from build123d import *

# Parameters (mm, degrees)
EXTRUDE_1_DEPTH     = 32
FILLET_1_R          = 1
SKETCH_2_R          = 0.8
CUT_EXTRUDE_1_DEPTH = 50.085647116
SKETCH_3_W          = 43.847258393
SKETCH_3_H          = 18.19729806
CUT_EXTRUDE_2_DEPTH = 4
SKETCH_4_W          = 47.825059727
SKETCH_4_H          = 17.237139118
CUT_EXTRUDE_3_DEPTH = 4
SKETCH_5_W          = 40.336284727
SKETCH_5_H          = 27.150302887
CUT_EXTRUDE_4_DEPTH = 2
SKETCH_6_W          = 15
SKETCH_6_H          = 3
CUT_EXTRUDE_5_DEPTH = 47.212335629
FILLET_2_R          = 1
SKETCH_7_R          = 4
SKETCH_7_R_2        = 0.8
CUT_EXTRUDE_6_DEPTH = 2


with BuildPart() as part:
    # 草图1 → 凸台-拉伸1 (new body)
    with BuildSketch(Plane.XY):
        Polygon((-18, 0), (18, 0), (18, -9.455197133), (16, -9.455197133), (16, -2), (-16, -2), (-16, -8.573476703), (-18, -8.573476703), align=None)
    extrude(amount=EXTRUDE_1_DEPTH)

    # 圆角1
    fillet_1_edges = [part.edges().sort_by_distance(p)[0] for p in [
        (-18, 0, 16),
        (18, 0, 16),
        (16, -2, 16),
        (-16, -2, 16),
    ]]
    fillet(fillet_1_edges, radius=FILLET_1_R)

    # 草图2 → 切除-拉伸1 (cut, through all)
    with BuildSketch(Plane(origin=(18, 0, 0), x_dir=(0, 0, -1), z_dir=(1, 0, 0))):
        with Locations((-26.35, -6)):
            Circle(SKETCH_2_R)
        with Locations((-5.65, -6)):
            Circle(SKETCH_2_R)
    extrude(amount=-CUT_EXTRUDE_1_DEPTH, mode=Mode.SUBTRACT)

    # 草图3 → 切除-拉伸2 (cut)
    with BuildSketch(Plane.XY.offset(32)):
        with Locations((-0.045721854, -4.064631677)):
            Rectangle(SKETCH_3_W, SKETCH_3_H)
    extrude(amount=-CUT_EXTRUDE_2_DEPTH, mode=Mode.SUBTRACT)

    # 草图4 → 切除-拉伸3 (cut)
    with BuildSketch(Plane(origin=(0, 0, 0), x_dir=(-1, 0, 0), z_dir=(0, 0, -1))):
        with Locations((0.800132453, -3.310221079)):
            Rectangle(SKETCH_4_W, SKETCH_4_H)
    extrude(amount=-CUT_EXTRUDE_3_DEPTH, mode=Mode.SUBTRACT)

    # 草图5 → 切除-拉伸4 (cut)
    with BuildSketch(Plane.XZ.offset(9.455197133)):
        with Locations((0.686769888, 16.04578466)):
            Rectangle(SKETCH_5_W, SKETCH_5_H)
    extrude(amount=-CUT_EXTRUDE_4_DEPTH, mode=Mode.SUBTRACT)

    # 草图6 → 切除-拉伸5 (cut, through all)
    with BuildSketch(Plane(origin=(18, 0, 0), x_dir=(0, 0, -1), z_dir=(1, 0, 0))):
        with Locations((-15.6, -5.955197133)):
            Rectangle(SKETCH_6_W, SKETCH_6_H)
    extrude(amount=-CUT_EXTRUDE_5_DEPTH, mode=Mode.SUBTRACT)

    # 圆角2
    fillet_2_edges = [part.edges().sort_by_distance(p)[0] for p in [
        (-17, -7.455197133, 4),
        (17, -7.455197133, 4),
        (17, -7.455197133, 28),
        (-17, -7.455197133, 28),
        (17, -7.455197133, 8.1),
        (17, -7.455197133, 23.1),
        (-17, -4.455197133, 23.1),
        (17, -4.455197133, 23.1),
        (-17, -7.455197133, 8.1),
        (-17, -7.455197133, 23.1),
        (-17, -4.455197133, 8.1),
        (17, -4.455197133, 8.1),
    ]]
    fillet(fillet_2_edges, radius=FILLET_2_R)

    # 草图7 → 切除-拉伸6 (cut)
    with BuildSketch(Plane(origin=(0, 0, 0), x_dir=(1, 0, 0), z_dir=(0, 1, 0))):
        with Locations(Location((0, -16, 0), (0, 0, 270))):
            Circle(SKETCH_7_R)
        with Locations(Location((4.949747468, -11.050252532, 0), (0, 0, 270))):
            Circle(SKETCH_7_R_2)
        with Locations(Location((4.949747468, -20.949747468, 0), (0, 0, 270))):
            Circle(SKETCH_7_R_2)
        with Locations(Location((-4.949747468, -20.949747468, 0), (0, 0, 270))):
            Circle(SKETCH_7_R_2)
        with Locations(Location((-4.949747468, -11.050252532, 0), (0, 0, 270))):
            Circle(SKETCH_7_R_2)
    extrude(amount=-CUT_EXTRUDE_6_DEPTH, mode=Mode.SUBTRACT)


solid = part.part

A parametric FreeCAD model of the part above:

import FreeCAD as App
import Part
import Sketcher

V = App.Vector


def edges_at(feature, points):
    """Names of the edges that pass closest to the given points."""
    edges = feature.Shape.Edges
    near = lambda p: min(range(len(edges)), key=lambda i: edges[i].distToShape(Part.Vertex(*p))[0])
    return sorted({f"Edge{near(p) + 1}" for p in points})


def add_polygon(sketch, points):
    """Adds a closed chain of lines whose ends are joined by coincident constraints."""
    first, n = sketch.GeometryCount, len(points)
    for a, b in zip(points, points[1:] + points[:1]):
        sketch.addGeometry(Part.LineSegment(App.Vector(*a, 0), App.Vector(*b, 0)), False)
    for i in range(n):
        sketch.addConstraint(Sketcher.Constraint("Coincident", first + i, 2, first + (i + 1) % n, 1))

doc = App.newDocument("Part")
body = doc.addObject("PartDesign::Body", "Body")

sketch1 = body.newObject("Sketcher::SketchObject", "Sketch")
sketch1.AttachmentSupport = (doc.getObject("XY_Plane"), [""])
sketch1.MapMode = "FlatFace"
add_polygon(sketch1, [(18, 0), (-18, 0), (-18, -8.573477), (-16, -8.573477), (-16, -2), (16, -2), (16, -9.455197), (18, -9.455197)])
sketch1.addConstraint(Sketcher.Constraint("Horizontal", 0))
sketch1.addConstraint(Sketcher.Constraint("Vertical", 1))
sketch1.addConstraint(Sketcher.Constraint("Horizontal", 2))
sketch1.addConstraint(Sketcher.Constraint("Vertical", 3))
sketch1.addConstraint(Sketcher.Constraint("Horizontal", 4))
sketch1.addConstraint(Sketcher.Constraint("Vertical", 5))
sketch1.addConstraint(Sketcher.Constraint("Horizontal", 6))
sketch1.addConstraint(Sketcher.Constraint("Vertical", 7))
sketch1.addConstraint(Sketcher.Constraint("Symmetric", 0, 2, 7, 2, -1, 1))
sketch1.addConstraint(Sketcher.Constraint("Equal", 2, 6))
sketch1.addConstraint(Sketcher.Constraint("DistanceX", 0, 2, 0, 1, 36.0))
sketch1.addConstraint(Sketcher.Constraint("DistanceX", 2, 1, 2, 2, 2.0))
sketch1.addConstraint(Sketcher.Constraint("DistanceY", 3, 2, -1, 1, 2.0))
sketch1.addConstraint(Sketcher.Constraint("DistanceY", 1, 2, 1, 1, 8.573477))
sketch1.addConstraint(Sketcher.Constraint("DistanceY", 5, 2, 5, 1, 7.455197))
pad1 = body.newObject("PartDesign::Pad", "Pad")
pad1.Profile = sketch1
pad1.Length = 32
doc.recompute()

fillet = body.newObject("PartDesign::Fillet", "Fillet")
fillet.Base = (pad1, edges_at(pad1, [
    (-18, 0, 16),
    (18, 0, 16),
    (16, -2, 16),
    (-16, -2, 16),
]))
fillet.Radius = 1

sketch2 = body.newObject("Sketcher::SketchObject", "Sketch001")
sketch2.AttachmentSupport = (doc.getObject("YZ_Plane"), [""])
sketch2.MapMode = "FlatFace"
sketch2.AttachmentOffset = App.Placement(V(0, 0, 18), App.Rotation())
sketch2.addGeometry(Part.Circle(V(-6, 26.35, 0), V(0, 0, 1), 0.8), False)
sketch2.addGeometry(Part.Circle(V(-6, 5.65, 0), V(0, 0, 1), 0.8), False)
sketch2.addConstraint(Sketcher.Constraint("Equal", 0, 1))
sketch2.addConstraint(Sketcher.Constraint("Vertical", 0, 3, 1, 3))
sketch2.addConstraint(Sketcher.Constraint("Diameter", 0, 1.6))
sketch2.addConstraint(Sketcher.Constraint("DistanceX", 0, 3, -1, 1, 6.0))
sketch2.addConstraint(Sketcher.Constraint("DistanceY", 1, 3, 0, 3, 20.7))
sketch2.addConstraint(Sketcher.Constraint("DistanceY", -1, 1, 0, 3, 26.35))
pocket1 = body.newObject("PartDesign::Pocket", "Pocket")
pocket1.Profile = sketch2
pocket1.Type = "ThroughAll"

sketch3 = body.newObject("Sketcher::SketchObject", "Sketch002")
sketch3.AttachmentSupport = (doc.getObject("XY_Plane"), [""])
sketch3.MapMode = "FlatFace"
sketch3.AttachmentOffset = App.Placement(V(0, 0, 32), App.Rotation())
add_polygon(sketch3, [(-21.969351, 5.034017), (-21.969351, -13.163281), (21.877907, -13.163281), (21.877907, 5.034017)])
sketch3.addConstraint(Sketcher.Constraint("Vertical", 0))
sketch3.addConstraint(Sketcher.Constraint("Horizontal", 1))
sketch3.addConstraint(Sketcher.Constraint("Vertical", 2))
sketch3.addConstraint(Sketcher.Constraint("Horizontal", 3))
sketch3.addConstraint(Sketcher.Constraint("DistanceY", 0, 2, 0, 1, 18.197298))
sketch3.addConstraint(Sketcher.Constraint("DistanceX", 1, 1, 1, 2, 43.847258))
sketch3.addConstraint(Sketcher.Constraint("DistanceX", 0, 2, -1, 1, 21.969351))
sketch3.addConstraint(Sketcher.Constraint("DistanceY", 0, 2, -1, 1, 13.163281))
pocket2 = body.newObject("PartDesign::Pocket", "Pocket001")
pocket2.Profile = sketch3
pocket2.Length = 4

sketch4 = body.newObject("Sketcher::SketchObject", "Sketch003")
sketch4.AttachmentSupport = (doc.getObject("XY_Plane"), [""])
sketch4.MapMode = "FlatFace"
add_polygon(sketch4, [(23.112397, 5.308348), (23.112397, -11.928791), (-24.712662, -11.928791), (-24.712662, 5.308348)])
sketch4.addConstraint(Sketcher.Constraint("Vertical", 0))
sketch4.addConstraint(Sketcher.Constraint("Horizontal", 1))
sketch4.addConstraint(Sketcher.Constraint("Vertical", 2))
sketch4.addConstraint(Sketcher.Constraint("Horizontal", 3))
sketch4.addConstraint(Sketcher.Constraint("DistanceX", 1, 2, 1, 1, 47.82506))
sketch4.addConstraint(Sketcher.Constraint("DistanceY", 0, 2, 0, 1, 17.237139))
sketch4.addConstraint(Sketcher.Constraint("DistanceY", 0, 2, -1, 1, 11.928791))
sketch4.addConstraint(Sketcher.Constraint("DistanceX", -1, 1, 0, 2, 23.112397))
pocket3 = body.newObject("PartDesign::Pocket", "Pocket002")
pocket3.Profile = sketch4
pocket3.Length = 4
pocket3.Reversed = True

sketch5 = body.newObject("Sketcher::SketchObject", "Sketch004")
sketch5.AttachmentSupport = (doc.getObject("XZ_Plane"), [""])
sketch5.MapMode = "FlatFace"
sketch5.AttachmentOffset = App.Placement(V(0, 0, 9.455197), App.Rotation())
add_polygon(sketch5, [(-19.481372, 29.620936), (-19.481372, 2.470633), (20.854912, 2.470633), (20.854912, 29.620936)])
sketch5.addConstraint(Sketcher.Constraint("Vertical", 0))
sketch5.addConstraint(Sketcher.Constraint("Horizontal", 1))
sketch5.addConstraint(Sketcher.Constraint("Vertical", 2))
sketch5.addConstraint(Sketcher.Constraint("Horizontal", 3))
sketch5.addConstraint(Sketcher.Constraint("DistanceX", 1, 1, 1, 2, 40.336285))
sketch5.addConstraint(Sketcher.Constraint("DistanceY", 0, 2, 0, 1, 27.150303))
sketch5.addConstraint(Sketcher.Constraint("DistanceX", 0, 2, -1, 1, 19.481372))
sketch5.addConstraint(Sketcher.Constraint("DistanceY", -1, 1, 0, 2, 2.470633))
pocket4 = body.newObject("PartDesign::Pocket", "Pocket003")
pocket4.Profile = sketch5
pocket4.Length = 2

sketch6 = body.newObject("Sketcher::SketchObject", "Sketch005")
sketch6.AttachmentSupport = (doc.getObject("YZ_Plane"), [""])
sketch6.MapMode = "FlatFace"
sketch6.AttachmentOffset = App.Placement(V(0, 0, 18), App.Rotation())
add_polygon(sketch6, [(-4.455197, 23.1), (-7.455197, 23.1), (-7.455197, 8.1), (-4.455197, 8.1)])
sketch6.addConstraint(Sketcher.Constraint("Horizontal", 0))
sketch6.addConstraint(Sketcher.Constraint("Vertical", 1))
sketch6.addConstraint(Sketcher.Constraint("Horizontal", 2))
sketch6.addConstraint(Sketcher.Constraint("Vertical", 3))
sketch6.addConstraint(Sketcher.Constraint("DistanceX", 0, 2, 0, 1, 3.0))
sketch6.addConstraint(Sketcher.Constraint("DistanceY", 1, 2, 1, 1, 15.0))
sketch6.addConstraint(Sketcher.Constraint("DistanceY", -1, 1, 0, 2, 23.1))
sketch6.addConstraint(Sketcher.Constraint("DistanceX", 0, 2, -1, 1, 7.455197))
pocket5 = body.newObject("PartDesign::Pocket", "Pocket004")
pocket5.Profile = sketch6
pocket5.Type = "ThroughAll"
doc.recompute()

fillet2 = body.newObject("PartDesign::Fillet", "Fillet001")
fillet2.Base = (pocket5, edges_at(pocket5, [
    (-17, -7.455, 4),
    (17, -7.455, 4),
    (17, -7.455, 28),
    (-17, -7.455, 28),
    (17, -7.455, 8.1),
    (17, -7.455, 23.1),
    (-17, -4.455, 23.1),
    (17, -4.455, 23.1),
    (-17, -7.455, 8.1),
    (-17, -7.455, 23.1),
    (-17, -4.455, 8.1),
    (17, -4.455, 8.1),
]))
fillet2.Radius = 1

sketch7 = body.newObject("Sketcher::SketchObject", "Sketch006")
sketch7.AttachmentSupport = (doc.getObject("XZ_Plane"), [""])
sketch7.MapMode = "FlatFace"
sketch7.addGeometry(Part.Circle(V(0, 16, 0), V(0, 0, 1), 4), False)
sketch7.addGeometry(Part.Circle(V(4.949747, 11.050253, 0), V(0, 0, 1), 0.8), False)
sketch7.addGeometry(Part.Circle(V(4.949747, 20.949747, 0), V(0, 0, 1), 0.8), False)
sketch7.addGeometry(Part.Circle(V(-4.949747, 20.949747, 0), V(0, 0, 1), 0.8), False)
sketch7.addGeometry(Part.Circle(V(-4.949747, 11.050253, 0), V(0, 0, 1), 0.8), False)
sketch7.addConstraint(Sketcher.Constraint("Equal", 1, 2))
sketch7.addConstraint(Sketcher.Constraint("Equal", 2, 3))
sketch7.addConstraint(Sketcher.Constraint("Equal", 3, 4))
sketch7.addConstraint(Sketcher.Constraint("Symmetric", 2, 3, 3, 3, -2))
sketch7.addConstraint(Sketcher.Constraint("Symmetric", 1, 3, 4, 3, -2))
sketch7.addConstraint(Sketcher.Constraint("PointOnObject", 0, 3, -2))
sketch7.addConstraint(Sketcher.Constraint("Vertical", 1, 3, 2, 3))
sketch7.addConstraint(Sketcher.Constraint("Diameter", 0, 8.0))
sketch7.addConstraint(Sketcher.Constraint("Diameter", 1, 1.6))
sketch7.addConstraint(Sketcher.Constraint("DistanceY", -1, 1, 0, 3, 16.0))
sketch7.addConstraint(Sketcher.Constraint("DistanceX", -1, 1, 1, 3, 4.949747))
sketch7.addConstraint(Sketcher.Constraint("DistanceY", -1, 1, 1, 3, 11.050253))
sketch7.addConstraint(Sketcher.Constraint("DistanceY", -1, 1, 2, 3, 20.949747))
pocket6 = body.newObject("PartDesign::Pocket", "Pocket005")
pocket6.Profile = sketch7
pocket6.Length = 2
pocket6.Reversed = True

doc.recompute()
